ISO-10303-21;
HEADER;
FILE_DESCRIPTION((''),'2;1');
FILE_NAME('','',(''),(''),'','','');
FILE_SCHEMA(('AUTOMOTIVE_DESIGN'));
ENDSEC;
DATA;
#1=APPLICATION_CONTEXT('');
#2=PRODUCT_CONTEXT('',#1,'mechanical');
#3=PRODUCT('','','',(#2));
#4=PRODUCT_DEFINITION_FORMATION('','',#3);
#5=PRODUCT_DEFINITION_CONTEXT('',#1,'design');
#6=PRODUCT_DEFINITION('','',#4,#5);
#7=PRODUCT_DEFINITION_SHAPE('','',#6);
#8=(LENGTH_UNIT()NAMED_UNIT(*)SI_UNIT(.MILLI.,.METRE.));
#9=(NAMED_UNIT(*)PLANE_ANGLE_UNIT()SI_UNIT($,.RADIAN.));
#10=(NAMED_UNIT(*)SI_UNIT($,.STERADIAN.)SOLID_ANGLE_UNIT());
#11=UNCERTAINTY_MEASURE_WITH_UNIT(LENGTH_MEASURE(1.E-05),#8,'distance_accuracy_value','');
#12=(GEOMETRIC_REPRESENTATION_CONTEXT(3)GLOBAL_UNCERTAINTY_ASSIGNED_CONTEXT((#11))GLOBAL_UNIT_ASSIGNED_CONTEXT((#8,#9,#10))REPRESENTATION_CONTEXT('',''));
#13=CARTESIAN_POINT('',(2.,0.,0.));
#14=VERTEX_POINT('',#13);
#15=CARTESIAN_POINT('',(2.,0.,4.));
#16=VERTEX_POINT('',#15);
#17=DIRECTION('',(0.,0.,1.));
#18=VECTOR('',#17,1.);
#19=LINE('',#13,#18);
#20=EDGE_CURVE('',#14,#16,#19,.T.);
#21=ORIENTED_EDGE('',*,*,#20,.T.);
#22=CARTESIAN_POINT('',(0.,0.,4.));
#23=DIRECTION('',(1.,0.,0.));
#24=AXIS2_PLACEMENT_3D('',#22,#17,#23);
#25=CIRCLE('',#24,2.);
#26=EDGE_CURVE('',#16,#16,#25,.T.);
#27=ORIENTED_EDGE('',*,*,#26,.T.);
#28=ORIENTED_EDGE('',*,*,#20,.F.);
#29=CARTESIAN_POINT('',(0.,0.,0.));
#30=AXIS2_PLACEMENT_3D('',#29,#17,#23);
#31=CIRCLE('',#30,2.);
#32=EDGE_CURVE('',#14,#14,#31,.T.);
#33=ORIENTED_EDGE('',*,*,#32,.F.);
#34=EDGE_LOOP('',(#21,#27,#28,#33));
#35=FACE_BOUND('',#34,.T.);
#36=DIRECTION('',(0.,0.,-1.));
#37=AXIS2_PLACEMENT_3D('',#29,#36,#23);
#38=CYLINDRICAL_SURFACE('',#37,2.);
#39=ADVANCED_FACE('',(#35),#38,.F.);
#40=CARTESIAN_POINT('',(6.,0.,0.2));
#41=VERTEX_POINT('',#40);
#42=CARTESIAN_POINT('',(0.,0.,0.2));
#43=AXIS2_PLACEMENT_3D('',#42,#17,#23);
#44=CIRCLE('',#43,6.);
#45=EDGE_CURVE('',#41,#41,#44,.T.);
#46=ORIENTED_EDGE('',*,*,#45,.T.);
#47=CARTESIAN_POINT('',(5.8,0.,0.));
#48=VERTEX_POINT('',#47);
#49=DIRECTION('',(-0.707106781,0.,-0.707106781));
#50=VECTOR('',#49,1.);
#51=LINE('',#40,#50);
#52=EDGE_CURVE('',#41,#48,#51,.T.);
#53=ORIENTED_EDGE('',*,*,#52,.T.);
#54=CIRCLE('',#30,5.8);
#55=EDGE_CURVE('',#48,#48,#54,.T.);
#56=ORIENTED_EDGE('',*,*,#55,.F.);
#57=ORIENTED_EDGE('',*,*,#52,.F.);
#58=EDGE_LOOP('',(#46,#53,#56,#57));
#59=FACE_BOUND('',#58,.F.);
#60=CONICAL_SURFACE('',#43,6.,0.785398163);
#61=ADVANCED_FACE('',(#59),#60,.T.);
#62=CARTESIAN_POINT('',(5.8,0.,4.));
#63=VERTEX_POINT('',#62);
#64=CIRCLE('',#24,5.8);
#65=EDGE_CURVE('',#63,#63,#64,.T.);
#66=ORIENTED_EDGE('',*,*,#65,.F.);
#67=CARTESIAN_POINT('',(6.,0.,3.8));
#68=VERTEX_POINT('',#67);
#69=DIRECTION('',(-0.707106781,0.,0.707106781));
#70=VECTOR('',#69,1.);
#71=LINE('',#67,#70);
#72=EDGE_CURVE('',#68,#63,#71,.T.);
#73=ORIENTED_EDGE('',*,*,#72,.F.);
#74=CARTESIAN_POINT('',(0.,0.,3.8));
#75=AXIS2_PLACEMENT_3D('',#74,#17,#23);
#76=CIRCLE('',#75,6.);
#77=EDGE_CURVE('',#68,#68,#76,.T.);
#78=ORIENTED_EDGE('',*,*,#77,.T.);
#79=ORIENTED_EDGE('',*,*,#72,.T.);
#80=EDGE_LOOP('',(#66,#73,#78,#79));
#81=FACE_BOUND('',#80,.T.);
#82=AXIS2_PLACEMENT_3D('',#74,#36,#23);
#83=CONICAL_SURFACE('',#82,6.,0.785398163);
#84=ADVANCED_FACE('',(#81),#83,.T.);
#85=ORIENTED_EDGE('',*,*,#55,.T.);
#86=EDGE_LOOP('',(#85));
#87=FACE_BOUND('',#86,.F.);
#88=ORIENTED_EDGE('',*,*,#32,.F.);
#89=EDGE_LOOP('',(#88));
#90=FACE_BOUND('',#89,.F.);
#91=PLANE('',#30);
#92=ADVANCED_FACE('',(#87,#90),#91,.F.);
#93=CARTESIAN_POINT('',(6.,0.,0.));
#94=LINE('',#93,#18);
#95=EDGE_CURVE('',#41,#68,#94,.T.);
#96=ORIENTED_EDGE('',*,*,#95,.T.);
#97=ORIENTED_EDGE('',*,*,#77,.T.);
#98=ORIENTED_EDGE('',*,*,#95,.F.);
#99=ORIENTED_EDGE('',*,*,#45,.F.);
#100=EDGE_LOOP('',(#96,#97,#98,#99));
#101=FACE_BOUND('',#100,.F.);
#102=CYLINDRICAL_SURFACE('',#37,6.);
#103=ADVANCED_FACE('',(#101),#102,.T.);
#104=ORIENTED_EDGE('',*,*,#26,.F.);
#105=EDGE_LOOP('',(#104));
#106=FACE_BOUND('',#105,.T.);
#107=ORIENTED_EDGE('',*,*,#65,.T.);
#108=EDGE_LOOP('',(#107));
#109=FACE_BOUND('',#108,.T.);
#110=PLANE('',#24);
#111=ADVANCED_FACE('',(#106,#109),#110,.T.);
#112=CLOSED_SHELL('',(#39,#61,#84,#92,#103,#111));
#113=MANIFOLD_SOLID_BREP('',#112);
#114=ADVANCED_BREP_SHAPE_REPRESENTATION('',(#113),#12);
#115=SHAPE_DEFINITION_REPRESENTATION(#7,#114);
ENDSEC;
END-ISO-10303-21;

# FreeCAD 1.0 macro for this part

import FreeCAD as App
import Part
import Sketcher
from FreeCAD import Vector
Q = App.Units.Quantity


def edges_at(feature, points):
    """Names of the edges that pass closest to the given points."""
    edges = feature.Shape.Edges
    near = lambda p: min(range(len(edges)), key=lambda i: edges[i].distToShape(Part.Vertex(*p))[0])
    return sorted({f"Edge{near(p) + 1}" for p in points})

doc = App.newDocument("Part")
body = doc.addObject("PartDesign::Body", "Body")

# Sketch on XY plane
sketch1 = doc.addObject("Sketcher::SketchObject", "Sketch")
body.addObject(sketch1)
sketch1.AttachmentSupport = (doc.XY_Plane, [""])
sketch1.MapMode = "FlatFace"
sketch1.addGeometry([
    Part.Circle(Vector(0, 0, 0), Vector(0, 0, 1), 6),
    Part.Circle(Vector(0, 0, 0), Vector(0, 0, 1), 2),
], False)
sketch1.addConstraint([
    Sketcher.Constraint("Coincident", 0, 3, -1, 1),
    Sketcher.Constraint("Coincident", 1, 3, -1, 1),
    Sketcher.Constraint("Diameter", 0, Q("12 mm")),
    Sketcher.Constraint("Diameter", 1, Q("4 mm")),
])
pad1 = doc.addObject("PartDesign::Pad", "Pad")
body.addObject(pad1)
pad1.Profile = sketch1
pad1.Length = 4
doc.recompute()

chamfer = doc.addObject("PartDesign::Chamfer", "Chamfer")
body.addObject(chamfer)
chamfer.Base = (pad1, edges_at(pad1, [(-6, 0, 4), (-6, 0, 0)]))
chamfer.Size = 0.2

doc.recompute()
